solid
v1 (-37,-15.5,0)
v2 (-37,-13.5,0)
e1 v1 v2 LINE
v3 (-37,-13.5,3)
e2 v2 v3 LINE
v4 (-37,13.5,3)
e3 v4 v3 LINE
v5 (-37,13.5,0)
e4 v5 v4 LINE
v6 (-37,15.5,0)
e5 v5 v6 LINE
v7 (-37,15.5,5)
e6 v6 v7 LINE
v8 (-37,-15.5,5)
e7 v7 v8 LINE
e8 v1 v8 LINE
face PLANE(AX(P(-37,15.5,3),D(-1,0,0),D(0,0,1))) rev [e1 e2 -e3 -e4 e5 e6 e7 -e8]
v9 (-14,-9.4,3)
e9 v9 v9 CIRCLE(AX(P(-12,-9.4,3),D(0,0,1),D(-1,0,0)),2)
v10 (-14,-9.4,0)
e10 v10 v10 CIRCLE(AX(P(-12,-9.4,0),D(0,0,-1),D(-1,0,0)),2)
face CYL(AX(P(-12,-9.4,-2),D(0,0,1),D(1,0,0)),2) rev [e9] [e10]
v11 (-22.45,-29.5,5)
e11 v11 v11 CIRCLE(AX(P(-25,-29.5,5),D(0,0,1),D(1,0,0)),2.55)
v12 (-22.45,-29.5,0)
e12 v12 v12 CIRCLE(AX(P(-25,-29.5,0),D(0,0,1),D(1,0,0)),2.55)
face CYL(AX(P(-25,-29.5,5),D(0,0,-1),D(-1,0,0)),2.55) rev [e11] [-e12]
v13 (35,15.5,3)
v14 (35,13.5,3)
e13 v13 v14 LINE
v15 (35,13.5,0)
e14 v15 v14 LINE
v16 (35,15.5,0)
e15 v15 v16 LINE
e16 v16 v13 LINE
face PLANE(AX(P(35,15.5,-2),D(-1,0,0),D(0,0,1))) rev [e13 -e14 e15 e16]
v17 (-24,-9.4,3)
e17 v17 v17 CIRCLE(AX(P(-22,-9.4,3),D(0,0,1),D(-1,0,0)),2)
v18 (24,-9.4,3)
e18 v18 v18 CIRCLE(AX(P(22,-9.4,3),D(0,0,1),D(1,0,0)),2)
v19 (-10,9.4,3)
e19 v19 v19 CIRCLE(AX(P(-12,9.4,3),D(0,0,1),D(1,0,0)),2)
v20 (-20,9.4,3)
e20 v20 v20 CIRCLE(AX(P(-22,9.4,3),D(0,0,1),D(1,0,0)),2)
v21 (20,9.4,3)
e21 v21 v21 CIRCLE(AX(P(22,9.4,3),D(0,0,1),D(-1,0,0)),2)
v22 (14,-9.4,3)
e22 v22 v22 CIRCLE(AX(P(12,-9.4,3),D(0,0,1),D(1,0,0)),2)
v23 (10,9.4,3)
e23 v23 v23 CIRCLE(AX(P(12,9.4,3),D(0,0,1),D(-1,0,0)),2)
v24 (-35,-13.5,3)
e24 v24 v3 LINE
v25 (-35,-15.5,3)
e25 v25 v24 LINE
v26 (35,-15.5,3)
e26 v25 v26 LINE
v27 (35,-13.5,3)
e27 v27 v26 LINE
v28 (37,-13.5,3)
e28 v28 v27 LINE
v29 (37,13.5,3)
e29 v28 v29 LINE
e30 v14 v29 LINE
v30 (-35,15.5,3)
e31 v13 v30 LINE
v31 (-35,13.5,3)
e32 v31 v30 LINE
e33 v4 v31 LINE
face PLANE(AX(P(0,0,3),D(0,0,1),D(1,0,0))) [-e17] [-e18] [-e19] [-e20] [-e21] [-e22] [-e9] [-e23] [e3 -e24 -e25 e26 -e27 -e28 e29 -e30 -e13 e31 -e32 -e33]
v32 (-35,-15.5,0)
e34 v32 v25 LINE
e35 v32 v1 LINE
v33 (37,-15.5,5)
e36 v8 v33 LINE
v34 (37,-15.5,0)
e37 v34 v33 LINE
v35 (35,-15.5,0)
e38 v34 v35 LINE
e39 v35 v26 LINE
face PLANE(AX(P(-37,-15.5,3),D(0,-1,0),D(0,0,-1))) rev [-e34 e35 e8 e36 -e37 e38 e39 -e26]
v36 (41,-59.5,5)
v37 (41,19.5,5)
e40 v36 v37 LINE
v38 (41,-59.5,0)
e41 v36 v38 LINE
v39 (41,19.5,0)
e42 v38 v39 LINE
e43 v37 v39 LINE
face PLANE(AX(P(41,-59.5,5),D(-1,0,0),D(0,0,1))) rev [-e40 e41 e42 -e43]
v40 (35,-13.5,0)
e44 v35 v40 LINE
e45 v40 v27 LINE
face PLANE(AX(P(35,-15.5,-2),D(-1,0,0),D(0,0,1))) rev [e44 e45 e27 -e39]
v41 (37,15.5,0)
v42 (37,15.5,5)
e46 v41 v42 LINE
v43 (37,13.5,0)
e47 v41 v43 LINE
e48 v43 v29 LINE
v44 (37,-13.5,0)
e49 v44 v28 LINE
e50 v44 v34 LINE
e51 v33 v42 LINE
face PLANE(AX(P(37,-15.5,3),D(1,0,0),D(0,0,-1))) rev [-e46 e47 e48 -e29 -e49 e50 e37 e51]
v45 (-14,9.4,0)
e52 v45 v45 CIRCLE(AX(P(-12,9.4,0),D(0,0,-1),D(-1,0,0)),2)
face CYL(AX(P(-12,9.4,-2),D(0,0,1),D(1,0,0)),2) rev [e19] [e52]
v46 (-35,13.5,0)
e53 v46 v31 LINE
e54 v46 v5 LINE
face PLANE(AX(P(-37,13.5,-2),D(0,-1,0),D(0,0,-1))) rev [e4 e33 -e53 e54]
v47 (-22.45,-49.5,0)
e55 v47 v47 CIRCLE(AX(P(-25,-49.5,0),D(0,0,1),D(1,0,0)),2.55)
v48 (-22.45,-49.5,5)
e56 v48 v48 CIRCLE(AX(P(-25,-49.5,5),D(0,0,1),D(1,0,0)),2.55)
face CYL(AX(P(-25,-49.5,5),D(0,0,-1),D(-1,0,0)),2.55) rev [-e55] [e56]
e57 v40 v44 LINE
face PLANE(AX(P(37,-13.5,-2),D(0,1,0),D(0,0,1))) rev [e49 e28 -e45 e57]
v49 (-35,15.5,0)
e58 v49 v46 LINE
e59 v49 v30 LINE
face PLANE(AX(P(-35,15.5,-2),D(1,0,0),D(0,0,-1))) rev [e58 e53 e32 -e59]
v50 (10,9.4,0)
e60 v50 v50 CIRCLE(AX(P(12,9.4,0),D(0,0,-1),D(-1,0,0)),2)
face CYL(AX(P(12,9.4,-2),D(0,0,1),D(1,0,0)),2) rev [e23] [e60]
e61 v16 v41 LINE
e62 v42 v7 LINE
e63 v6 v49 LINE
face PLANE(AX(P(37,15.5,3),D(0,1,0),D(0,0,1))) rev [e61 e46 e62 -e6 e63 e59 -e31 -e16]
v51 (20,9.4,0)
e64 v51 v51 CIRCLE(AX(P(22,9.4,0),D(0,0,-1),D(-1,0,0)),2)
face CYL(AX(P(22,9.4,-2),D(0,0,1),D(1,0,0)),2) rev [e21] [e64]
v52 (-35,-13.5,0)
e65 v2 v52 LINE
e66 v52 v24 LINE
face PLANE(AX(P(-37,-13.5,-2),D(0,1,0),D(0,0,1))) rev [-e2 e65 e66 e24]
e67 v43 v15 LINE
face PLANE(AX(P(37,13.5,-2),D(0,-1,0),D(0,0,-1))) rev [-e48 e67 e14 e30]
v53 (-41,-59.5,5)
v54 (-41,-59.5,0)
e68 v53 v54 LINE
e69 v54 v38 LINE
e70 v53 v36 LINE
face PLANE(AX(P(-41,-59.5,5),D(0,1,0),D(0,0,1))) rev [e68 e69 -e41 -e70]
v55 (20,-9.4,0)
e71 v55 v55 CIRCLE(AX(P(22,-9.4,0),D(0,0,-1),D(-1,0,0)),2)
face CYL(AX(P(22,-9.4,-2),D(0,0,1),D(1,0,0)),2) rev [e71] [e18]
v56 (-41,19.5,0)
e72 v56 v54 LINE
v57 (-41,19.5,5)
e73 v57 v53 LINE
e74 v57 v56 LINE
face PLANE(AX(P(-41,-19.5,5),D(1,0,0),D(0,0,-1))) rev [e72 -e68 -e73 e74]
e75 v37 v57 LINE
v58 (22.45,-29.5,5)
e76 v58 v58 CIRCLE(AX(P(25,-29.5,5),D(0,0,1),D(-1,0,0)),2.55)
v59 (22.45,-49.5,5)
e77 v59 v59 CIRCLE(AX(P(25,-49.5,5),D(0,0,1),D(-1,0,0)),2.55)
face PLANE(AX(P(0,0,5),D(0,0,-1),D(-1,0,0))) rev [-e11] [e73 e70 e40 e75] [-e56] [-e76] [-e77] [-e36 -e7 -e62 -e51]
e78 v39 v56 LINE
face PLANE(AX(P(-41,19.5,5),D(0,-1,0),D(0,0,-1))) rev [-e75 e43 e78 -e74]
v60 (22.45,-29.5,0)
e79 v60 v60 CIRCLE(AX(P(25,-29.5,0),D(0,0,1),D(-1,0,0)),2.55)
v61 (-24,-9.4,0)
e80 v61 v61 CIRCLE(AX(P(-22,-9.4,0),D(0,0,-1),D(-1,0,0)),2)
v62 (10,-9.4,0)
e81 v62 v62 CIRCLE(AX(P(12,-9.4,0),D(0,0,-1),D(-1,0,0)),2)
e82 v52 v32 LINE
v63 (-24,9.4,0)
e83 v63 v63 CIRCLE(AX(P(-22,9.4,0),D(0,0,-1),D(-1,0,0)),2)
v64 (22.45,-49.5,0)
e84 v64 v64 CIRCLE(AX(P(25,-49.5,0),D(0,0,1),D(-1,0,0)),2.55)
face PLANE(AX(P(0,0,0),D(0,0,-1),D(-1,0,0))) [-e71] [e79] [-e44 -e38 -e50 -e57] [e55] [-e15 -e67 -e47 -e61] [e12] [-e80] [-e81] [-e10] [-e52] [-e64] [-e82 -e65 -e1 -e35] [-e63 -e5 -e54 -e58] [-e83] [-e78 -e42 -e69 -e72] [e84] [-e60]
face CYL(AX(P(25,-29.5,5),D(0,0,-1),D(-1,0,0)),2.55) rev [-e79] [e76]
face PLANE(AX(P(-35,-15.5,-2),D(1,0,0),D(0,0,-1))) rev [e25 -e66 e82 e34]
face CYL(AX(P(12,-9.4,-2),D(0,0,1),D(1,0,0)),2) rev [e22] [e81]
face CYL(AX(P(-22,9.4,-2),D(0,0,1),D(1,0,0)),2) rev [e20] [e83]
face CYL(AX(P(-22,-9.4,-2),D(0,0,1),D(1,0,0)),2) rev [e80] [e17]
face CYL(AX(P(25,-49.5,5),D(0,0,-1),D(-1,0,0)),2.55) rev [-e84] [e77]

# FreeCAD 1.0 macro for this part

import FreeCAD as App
import Part
import Sketcher

doc = App.newDocument("Part")
body = doc.addObject("PartDesign::Body", "Body")

sketch1 = body.newObject("Sketcher::SketchObject", "Sketch")
sketch1.AttachmentSupport = (doc.getObject("XY_Plane"), [""])
sketch1.MapMode = "FlatFace"
sketch1.addGeometry([
    Part.LineSegment(App.Vector(-41, -59.5, 0), App.Vector(41, -59.5, 0)),
    Part.LineSegment(App.Vector(41, -59.5, 0), App.Vector(41, 19.5, 0)),
    Part.LineSegment(App.Vector(41, 19.5, 0), App.Vector(-41, 19.5, 0)),
    Part.LineSegment(App.Vector(-41, 19.5, 0), App.Vector(-41, -59.5, 0)),
    Part.Circle(App.Vector(-25, -49.5, 0), App.Vector(0, 0, 1), 2.55),
    Part.Circle(App.Vector(25, -49.5, 0), App.Vector(0, 0, 1), 2.55),
    Part.Circle(App.Vector(-25, -29.5, 0), App.Vector(0, 0, 1), 2.55),
    Part.Circle(App.Vector(25, -29.5, 0), App.Vector(0, 0, 1), 2.55),
], False)
sketch1.addConstraint([
    Sketcher.Constraint("Coincident", 0, 2, 1, 1),
    Sketcher.Constraint("Coincident", 1, 2, 2, 1),
    Sketcher.Constraint("Coincident", 2, 2, 3, 1),
    Sketcher.Constraint("Coincident", 3, 2, 0, 1),
    Sketcher.Constraint("Horizontal", 0),
    Sketcher.Constraint("Vertical", 1),
    Sketcher.Constraint("Horizontal", 2),
    Sketcher.Constraint("Vertical", 3),
    Sketcher.Constraint("Equal", 4, 5),
    Sketcher.Constraint("Equal", 5, 6),
    Sketcher.Constraint("Equal", 6, 7),
    Sketcher.Constraint("Symmetric", 4, 3, 5, 3, -2),
    Sketcher.Constraint("Symmetric", 6, 3, 7, 3, -2),
    Sketcher.Constraint("Vertical", 4, 3, 6, 3),
    Sketcher.Constraint("Diameter", 4, 5.1),
    Sketcher.Constraint("DistanceX", 0, 1, 0, 2, 82.0),
    Sketcher.Constraint("DistanceY", 1, 1, 1, 2, 79.0),
    Sketcher.Constraint("DistanceX", 4, 3, -1, 1, 25.0),
    Sketcher.Constraint("DistanceX", -1, 1, 0, 2, 41.0),
    Sketcher.Constraint("DistanceY", 4, 3, 6, 3, 20.0),
    Sketcher.Constraint("DistanceY", 0, 2, 5, 3, 10.0),
    Sketcher.Constraint("DistanceY", 4, 3, -1, 1, 49.5),
])
pad1 = body.newObject("PartDesign::Pad", "Pad")
pad1.Profile = sketch1
pad1.Length = 5

sketch2 = body.newObject("Sketcher::SketchObject", "Sketch001")
sketch2.AttachmentSupport = (doc.getObject("XY_Plane"), [""])
sketch2.MapMode = "FlatFace"
sketch2.AttachmentOffset = App.Placement(App.Vector(0, 0, 5), App.Rotation())
sketch2.addGeometry([
    Part.Circle(App.Vector(25, -29.5, 0), App.Vector(0, 0, 1), 2.55),
    Part.Circle(App.Vector(25, -49.5, 0), App.Vector(0, 0, 1), 2.55),
    Part.Circle(App.Vector(-25, -49.5, 0), App.Vector(0, 0, 1), 2.55),
    Part.Circle(App.Vector(-25, -29.5, 0), App.Vector(0, 0, 1), 2.55),
    Part.LineSegment(App.Vector(-37, 15.5, 0), App.Vector(-37, -15.5, 0)),
    Part.LineSegment(App.Vector(-37, -15.5, 0), App.Vector(37, -15.5, 0)),
    Part.LineSegment(App.Vector(37, -15.5, 0), App.Vector(37, 15.5, 0)),
    Part.LineSegment(App.Vector(37, 15.5, 0), App.Vector(-37, 15.5, 0)),
], False)
sketch2.addConstraint([
    Sketcher.Constraint("Coincident", 4, 2, 5, 1),
    Sketcher.Constraint("Coincident", 5, 2, 6, 1),
    Sketcher.Constraint("Coincident", 6, 2, 7, 1),
    Sketcher.Constraint("Coincident", 7, 2, 4, 1),
    Sketcher.Constraint("Vertical", 4),
    Sketcher.Constraint("Horizontal", 5),
    Sketcher.Constraint("Vertical", 6),
    Sketcher.Constraint("Horizontal", 7),
    Sketcher.Constraint("Equal", 0, 1),
    Sketcher.Constraint("Equal", 1, 2),
    Sketcher.Constraint("Equal", 2, 3),
    Sketcher.Constraint("Symmetric", 4, 2, 6, 2, -1, 1),
    Sketcher.Constraint("Symmetric", 1, 3, 2, 3, -2),
    Sketcher.Constraint("Symmetric", 0, 3, 3, 3, -2),
    Sketcher.Constraint("Vertical", 0, 3, 1, 3),
    Sketcher.Constraint("Diameter", 0, 5.1),
    Sketcher.Constraint("DistanceX", 5, 1, 5, 2, 74.0),
    Sketcher.Constraint("DistanceY", 4, 2, 4, 1, 31.0),
    Sketcher.Constraint("DistanceX", -1, 1, 0, 3, 25.0),
    Sketcher.Constraint("DistanceY", 1, 3, 0, 3, 20.0),
    Sketcher.Constraint("DistanceY", 3, 3, 4, 2, 14.0),
])
pocket1 = body.newObject("PartDesign::Pocket", "Pocket")
pocket1.Profile = sketch2
pocket1.Length = 2

sketch3 = body.newObject("Sketcher::SketchObject", "Sketch002")
sketch3.AttachmentSupport = (doc.getObject("XY_Plane"), [""])
sketch3.MapMode = "FlatFace"
sketch3.AttachmentOffset = App.Placement(App.Vector(0, 0, 3), App.Rotation())
sketch3.addGeometry([
    Part.Circle(App.Vector(-22, 9.4, 0), App.Vector(0, 0, 1), 2),
    Part.Circle(App.Vector(-12, 9.4, 0), App.Vector(0, 0, 1), 2),
    Part.Circle(App.Vector(12, 9.4, 0), App.Vector(0, 0, 1), 2),
    Part.Circle(App.Vector(22, 9.4, 0), App.Vector(0, 0, 1), 2),
    Part.Circle(App.Vector(22, -9.4, 0), App.Vector(0, 0, 1), 2),
    Part.Circle(App.Vector(12, -9.4, 0), App.Vector(0, 0, 1), 2),
    Part.Circle(App.Vector(-12, -9.4, 0), App.Vector(0, 0, 1), 2),
    Part.Circle(App.Vector(-22, -9.4, 0), App.Vector(0, 0, 1), 2),
    Part.LineSegment(App.Vector(-37, -13.5, 0), App.Vector(-37, -15.5, 0)),
    Part.LineSegment(App.Vector(-37, -15.5, 0), App.Vector(-35, -15.5, 0)),
    Part.LineSegment(App.Vector(-35, -15.5, 0), App.Vector(-35, -13.5, 0)),
    Part.LineSegment(App.Vector(-35, -13.5, 0), App.Vector(-37, -13.5, 0)),
    Part.LineSegment(App.Vector(-37, 15.5, 0), App.Vector(-37, 13.5, 0)),
    Part.LineSegment(App.Vector(-37, 13.5, 0), App.Vector(-35, 13.5, 0)),
    Part.LineSegment(App.Vector(-35, 13.5, 0), App.Vector(-35, 15.5, 0)),
    Part.LineSegment(App.Vector(-35, 15.5, 0), App.Vector(-37, 15.5, 0)),
    Part.LineSegment(App.Vector(35, 15.5, 0), App.Vector(35, 13.5, 0)),
    Part.LineSegment(App.Vector(35, 13.5, 0), App.Vector(37, 13.5, 0)),
    Part.LineSegment(App.Vector(37, 13.5, 0), App.Vector(37, 15.5, 0)),
    Part.LineSegment(App.Vector(37, 15.5, 0), App.Vector(35, 15.5, 0)),
    Part.LineSegment(App.Vector(35, -13.5, 0), App.Vector(35, -15.5, 0)),
    Part.LineSegment(App.Vector(35, -15.5, 0), App.Vector(37, -15.5, 0)),
    Part.LineSegment(App.Vector(37, -15.5, 0), App.Vector(37, -13.5, 0)),
    Part.LineSegment(App.Vector(37, -13.5, 0), App.Vector(35, -13.5, 0)),
], False)
sketch3.addConstraint([
    Sketcher.Constraint("Coincident", 8, 2, 9, 1),
    Sketcher.Constraint("Coincident", 9, 2, 10, 1),
    Sketcher.Constraint("Coincident", 10, 2, 11, 1),
    Sketcher.Constraint("Coincident", 11, 2, 8, 1),
    Sketcher.Constraint("Coincident", 12, 2, 13, 1),
    Sketcher.Constraint("Coincident", 13, 2, 14, 1),
    Sketcher.Constraint("Coincident", 14, 2, 15, 1),
    Sketcher.Constraint("Coincident", 15, 2, 12, 1),
    Sketcher.Constraint("Coincident", 16, 2, 17, 1),
    Sketcher.Constraint("Coincident", 17, 2, 18, 1),
    Sketcher.Constraint("Coincident", 18, 2, 19, 1),
    Sketcher.Constraint("Coincident", 19, 2, 16, 1),
    Sketcher.Constraint("Coincident", 20, 2, 21, 1),
    Sketcher.Constraint("Coincident", 21, 2, 22, 1),
    Sketcher.Constraint("Coincident", 22, 2, 23, 1),
    Sketcher.Constraint("Coincident", 23, 2, 20, 1),
    Sketcher.Constraint("Vertical", 8),
    Sketcher.Constraint("Horizontal", 9),
    Sketcher.Constraint("Vertical", 10),
    Sketcher.Constraint("Horizontal", 11),
    Sketcher.Constraint("Vertical", 12),
    Sketcher.Constraint("Horizontal", 13),
    Sketcher.Constraint("Vertical", 14),
    Sketcher.Constraint("Horizontal", 15),
    Sketcher.Constraint("Vertical", 16),
    Sketcher.Constraint("Horizontal", 17),
    Sketcher.Constraint("Vertical", 18),
    Sketcher.Constraint("Horizontal", 19),
    Sketcher.Constraint("Vertical", 20),
    Sketcher.Constraint("Horizontal", 21),
    Sketcher.Constraint("Vertical", 22),
    Sketcher.Constraint("Horizontal", 23),
    Sketcher.Constraint("Equal", 0, 1),
    Sketcher.Constraint("Equal", 1, 2),
    Sketcher.Constraint("Equal", 2, 3),
    Sketcher.Constraint("Equal", 3, 4),
    Sketcher.Constraint("Equal", 4, 5),
    Sketcher.Constraint("Equal", 5, 6),
    Sketcher.Constraint("Equal", 6, 7),
    Sketcher.Constraint("Symmetric", 0, 3, 4, 3, -1, 1),
    Sketcher.Constraint("Symmetric", 1, 3, 5, 3, -1, 1),
    Sketcher.Constraint("Symmetric", 2, 3, 6, 3, -1, 1),
    Sketcher.Constraint("Symmetric", 3, 3, 7, 3, -1, 1),
    Sketcher.Constraint("Symmetric", 10, 2, 16, 2, -1, 1),
    Sketcher.Constraint("Symmetric", 8, 2, 18, 2, -1, 1),
    Sketcher.Constraint("Symmetric", 14, 2, 20, 2, -1, 1),
    Sketcher.Constraint("Symmetric", 12, 2, 22, 2, -1, 1),
    Sketcher.Constraint("Symmetric", 1, 3, 2, 3, -2),
    Sketcher.Constraint("Symmetric", 0, 3, 3, 3, -2),
    Sketcher.Constraint("Symmetric", 13, 2, 16, 2, -2),
    Sketcher.Constraint("Symmetric", 15, 2, 18, 2, -2),
    Sketcher.Constraint("Horizontal", 0, 3, 1, 3),
    Sketcher.Constraint("Equal", 23, 8),
    Sketcher.Constraint("Diameter", 0, 4.0),
    Sketcher.Constraint("DistanceX", 9, 1, 9, 2, 2.0),
    Sketcher.Constraint("DistanceX", 0, 3, -1, 1, 22.0),
    Sketcher.Constraint("DistanceX", 1, 3, -1, 1, 12.0),
    Sketcher.Constraint("DistanceX", 8, 2, -1, 1, 37.0),
    Sketcher.Constraint("DistanceY", 11, 2, 12, 2, 27.0),
    Sketcher.Constraint("DistanceY", -1, 1, 0, 3, 9.4),
])
pocket2 = body.newObject("PartDesign::Pocket", "Pocket001")
pocket2.Profile = sketch3
pocket2.Length = 5

doc.recompute()
